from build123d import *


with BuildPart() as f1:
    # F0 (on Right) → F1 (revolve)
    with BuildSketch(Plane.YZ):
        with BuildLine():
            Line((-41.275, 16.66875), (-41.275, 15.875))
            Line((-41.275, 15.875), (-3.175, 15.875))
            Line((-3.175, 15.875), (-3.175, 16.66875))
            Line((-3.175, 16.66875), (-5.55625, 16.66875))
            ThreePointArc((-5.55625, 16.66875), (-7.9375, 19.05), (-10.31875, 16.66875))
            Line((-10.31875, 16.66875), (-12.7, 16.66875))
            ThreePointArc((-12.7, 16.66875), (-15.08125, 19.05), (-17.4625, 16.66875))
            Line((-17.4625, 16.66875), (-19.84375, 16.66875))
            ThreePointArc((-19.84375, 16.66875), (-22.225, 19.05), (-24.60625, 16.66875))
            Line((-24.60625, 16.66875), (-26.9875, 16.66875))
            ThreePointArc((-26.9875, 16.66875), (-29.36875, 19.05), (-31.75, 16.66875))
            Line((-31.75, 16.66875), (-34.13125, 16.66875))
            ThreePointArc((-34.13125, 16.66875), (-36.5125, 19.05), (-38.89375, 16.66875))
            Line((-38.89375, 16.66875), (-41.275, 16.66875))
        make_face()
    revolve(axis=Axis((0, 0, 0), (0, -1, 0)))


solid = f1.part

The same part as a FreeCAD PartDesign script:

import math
import FreeCAD as App
import Part
import Sketcher
Q = App.Units.Quantity

doc = App.newDocument("Part")
body = doc.addObject("PartDesign::Body", "Body")

sketch1 = body.newObject("Sketcher::SketchObject", "Sketch")
sketch1.AttachmentSupport = (doc.getObject("YZ_Plane"), [""])
sketch1.MapMode = "FlatFace"
sketch1.addGeometry(Part.LineSegment(App.Vector(-41.3, 16.7, 0), App.Vector(-41.3, 15.9, 0)), False)
sketch1.addGeometry(Part.LineSegment(App.Vector(-41.3, 15.9, 0), App.Vector(-3.2, 15.9, 0)), False)
sketch1.addGeometry(Part.LineSegment(App.Vector(-3.2, 15.9, 0), App.Vector(-3.2, 16.7, 0)), False)
sketch1.addGeometry(Part.LineSegment(App.Vector(-3.2, 16.7, 0), App.Vector(-5.6, 16.7, 0)), False)
sketch1.addGeometry(Part.ArcOfCircle(Part.Circle(App.Vector(-7.9, 16.7, 0), App.Vector(0, 0, 1), 2.4), math.radians(0), math.radians(180)), False)
sketch1.addGeometry(Part.LineSegment(App.Vector(-10.3, 16.7, 0), App.Vector(-12.7, 16.7, 0)), False)
sketch1.addGeometry(Part.ArcOfCircle(Part.Circle(App.Vector(-15.1, 16.7, 0), App.Vector(0, 0, 1), 2.4), math.radians(0), math.radians(180)), False)
sketch1.addGeometry(Part.LineSegment(App.Vector(-17.5, 16.7, 0), App.Vector(-19.8, 16.7, 0)), False)
sketch1.addGeometry(Part.ArcOfCircle(Part.Circle(App.Vector(-22.2, 16.7, 0), App.Vector(0, 0, 1), 2.4), math.radians(0), math.radians(180)), False)
sketch1.addGeometry(Part.LineSegment(App.Vector(-24.6, 16.7, 0), App.Vector(-27, 16.7, 0)), False)
sketch1.addGeometry(Part.ArcOfCircle(Part.Circle(App.Vector(-29.4, 16.7, 0), App.Vector(0, 0, 1), 2.4), math.radians(0), math.radians(180)), False)
sketch1.addGeometry(Part.LineSegment(App.Vector(-31.8, 16.7, 0), App.Vector(-34.1, 16.7, 0)), False)
sketch1.addGeometry(Part.ArcOfCircle(Part.Circle(App.Vector(-36.5, 16.7, 0), App.Vector(0, 0, 1), 2.4), math.radians(0), math.radians(180)), False)
sketch1.addGeometry(Part.LineSegment(App.Vector(-38.9, 16.7, 0), App.Vector(-41.3, 16.7, 0)), False)
sketch1.addConstraint(Sketcher.Constraint("Coincident", 0, 2, 1, 1))
sketch1.addConstraint(Sketcher.Constraint("Coincident", 1, 2, 2, 1))
sketch1.addConstraint(Sketcher.Constraint("Coincident", 2, 2, 3, 1))
sketch1.addConstraint(Sketcher.Constraint("Coincident", 3, 2, 4, 1))
sketch1.addConstraint(Sketcher.Constraint("Coincident", 4, 2, 5, 1))
sketch1.addConstraint(Sketcher.Constraint("Coincident", 5, 2, 6, 1))
sketch1.addConstraint(Sketcher.Constraint("Coincident", 6, 2, 7, 1))
sketch1.addConstraint(Sketcher.Constraint("Coincident", 7, 2, 8, 1))
sketch1.addConstraint(Sketcher.Constraint("Coincident", 8, 2, 9, 1))
sketch1.addConstraint(Sketcher.Constraint("Coincident", 9, 2, 10, 1))
sketch1.addConstraint(Sketcher.Constraint("Coincident", 10, 2, 11, 1))
sketch1.addConstraint(Sketcher.Constraint("Coincident", 11, 2, 12, 1))
sketch1.addConstraint(Sketcher.Constraint("Coincident", 12, 2, 13, 1))
sketch1.addConstraint(Sketcher.Constraint("Coincident", 13, 2, 0, 1))
sketch1.addConstraint(Sketcher.Constraint("Vertical", 0))
sketch1.addConstraint(Sketcher.Constraint("Horizontal", 1))
sketch1.addConstraint(Sketcher.Constraint("Vertical", 2))
sketch1.addConstraint(Sketcher.Constraint("Horizontal", 3))
sketch1.addConstraint(Sketcher.Constraint("Horizontal", 5))
sketch1.addConstraint(Sketcher.Constraint("Horizontal", 7))
sketch1.addConstraint(Sketcher.Constraint("Horizontal", 9))
sketch1.addConstraint(Sketcher.Constraint("Horizontal", 11))
sketch1.addConstraint(Sketcher.Constraint("Horizontal", 13))
sketch1.addConstraint(Sketcher.Constraint("Equal", 4, 6))
sketch1.addConstraint(Sketcher.Constraint("Equal", 6, 8))
sketch1.addConstraint(Sketcher.Constraint("Equal", 8, 10))
sketch1.addConstraint(Sketcher.Constraint("Equal", 10, 12))
sketch1.addConstraint(Sketcher.Constraint("Horizontal", 4, 3, 6, 3))
sketch1.addConstraint(Sketcher.Constraint("Horizontal", 6, 3, 8, 3))
sketch1.addConstraint(Sketcher.Constraint("Horizontal", 8, 3, 10, 3))
sketch1.addConstraint(Sketcher.Constraint("Horizontal", 10, 3, 12, 3))
sketch1.addConstraint(Sketcher.Constraint("Horizontal", 12, 3, 2, 2))
sketch1.addConstraint(Sketcher.Constraint("Horizontal", 3, 2, 4, 2))
sketch1.addConstraint(Sketcher.Constraint("Horizontal", 5, 2, 6, 2))
sketch1.addConstraint(Sketcher.Constraint("Horizontal", 7, 2, 8, 2))
sketch1.addConstraint(Sketcher.Constraint("Horizontal", 9, 2, 10, 2))
sketch1.addConstraint(Sketcher.Constraint("Horizontal", 11, 2, 12, 2))
sketch1.addConstraint(Sketcher.Constraint("Equal", 3, 5))
sketch1.addConstraint(Sketcher.Constraint("Equal", 5, 7))
sketch1.addConstraint(Sketcher.Constraint("Equal", 7, 9))
sketch1.addConstraint(Sketcher.Constraint("Equal", 9, 11))
sketch1.addConstraint(Sketcher.Constraint("Equal", 11, 13))
sketch1.addConstraint(Sketcher.Constraint("DistanceX", 1, 1, 1, 2, Q("1.5 in")))
sketch1.addConstraint(Sketcher.Constraint("Radius", 4, Q("0.09375 in")))
sketch1.addConstraint(Sketcher.Constraint("DistanceX", 5, 2, -1, 1, Q("0.5 in")))
sketch1.addConstraint(Sketcher.Constraint("DistanceY", 0, 2, 0, 1, Q("0.03125 in")))
sketch1.addConstraint(Sketcher.Constraint("DistanceY", -1, 1, 4, 3, Q("0.65625 in")))
revolution = body.newObject("PartDesign::Revolution", "Revolution")
revolution.Profile = sketch1
revolution.ReferenceAxis = (sketch1, ["H_Axis"])
revolution.Angle = 360

doc.recompute()
